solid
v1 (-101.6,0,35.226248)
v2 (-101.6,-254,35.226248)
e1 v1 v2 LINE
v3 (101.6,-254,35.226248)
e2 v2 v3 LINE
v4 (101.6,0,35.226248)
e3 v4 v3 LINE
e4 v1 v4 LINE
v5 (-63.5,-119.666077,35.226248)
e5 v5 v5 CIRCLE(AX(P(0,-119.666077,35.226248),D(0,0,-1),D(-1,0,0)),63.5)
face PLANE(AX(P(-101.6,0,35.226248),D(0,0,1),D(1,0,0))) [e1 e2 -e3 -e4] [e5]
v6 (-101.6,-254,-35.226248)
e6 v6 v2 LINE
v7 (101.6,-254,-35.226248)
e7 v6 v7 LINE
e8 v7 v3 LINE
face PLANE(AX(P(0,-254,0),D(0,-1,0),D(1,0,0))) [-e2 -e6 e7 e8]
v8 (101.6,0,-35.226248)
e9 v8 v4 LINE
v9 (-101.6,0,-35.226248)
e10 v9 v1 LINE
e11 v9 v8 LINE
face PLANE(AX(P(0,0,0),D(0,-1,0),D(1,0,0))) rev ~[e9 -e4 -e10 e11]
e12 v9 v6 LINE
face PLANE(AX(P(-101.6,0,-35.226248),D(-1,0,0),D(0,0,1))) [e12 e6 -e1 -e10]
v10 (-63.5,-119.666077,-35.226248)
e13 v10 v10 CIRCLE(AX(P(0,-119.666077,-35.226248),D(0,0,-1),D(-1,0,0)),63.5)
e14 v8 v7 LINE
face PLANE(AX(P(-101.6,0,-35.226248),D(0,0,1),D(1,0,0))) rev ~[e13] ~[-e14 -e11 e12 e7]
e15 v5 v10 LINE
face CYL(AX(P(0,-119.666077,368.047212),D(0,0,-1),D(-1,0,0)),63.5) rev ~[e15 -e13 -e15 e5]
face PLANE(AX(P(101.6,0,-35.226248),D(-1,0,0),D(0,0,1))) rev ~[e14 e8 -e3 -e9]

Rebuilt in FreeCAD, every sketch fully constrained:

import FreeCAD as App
import Part
import Sketcher

V = App.Vector
Q = App.Units.Quantity


def add_polygon(sketch, points):
    """Adds a closed chain of lines whose ends are joined by coincident constraints."""
    first, n = sketch.GeometryCount, len(points)
    for a, b in zip(points, points[1:] + points[:1]):
        sketch.addGeometry(Part.LineSegment(App.Vector(*a, 0), App.Vector(*b, 0)), False)
    for i in range(n):
        sketch.addConstraint(Sketcher.Constraint("Coincident", first + i, 2, first + (i + 1) % n, 1))

doc = App.newDocument("Part")
body = doc.addObject("PartDesign::Body", "Body")

# Sketch on XZ plane
sketch1 = body.newObject("Sketcher::SketchObject", "Sketch")
sketch1.AttachmentSupport = (doc.getObject("XZ_Plane"), [""])
sketch1.MapMode = "FlatFace"
add_polygon(sketch1, [(-102, 35), (-102, -35), (102, -35), (102, 35)])  # lines 0-3
sketch1.addConstraint([
    Sketcher.Constraint("Vertical", 0),
    Sketcher.Constraint("Horizontal", 1),
    Sketcher.Constraint("Vertical", 2),
    Sketcher.Constraint("Horizontal", 3),
    Sketcher.Constraint("Symmetric", 0, 2, 2, 2, -1, 1),
    Sketcher.Constraint("DistanceX", 1, 1, 1, 2, Q("8 in")),
    Sketcher.Constraint("DistanceY", 0, 2, 0, 1, 70.452496),
])
pad1 = body.newObject("PartDesign::Pad", "Pad")
pad1.Profile = sketch1
pad1.Length = Q("10 in")

# Sketch on XY plane
sketch2 = body.newObject("Sketcher::SketchObject", "Sketch001")
sketch2.AttachmentSupport = (doc.getObject("XY_Plane"), [""])
sketch2.MapMode = "FlatFace"
sketch2.AttachmentOffset = App.Placement(V(0, 0, 35.226248), App.Rotation())
sketch2.addGeometry(Part.Circle(V(0, -120, 0), V(0, 0, 1), 64), False)
sketch2.addConstraint([
    Sketcher.Constraint("PointOnObject", 0, 3, -2),
    Sketcher.Constraint("Diameter", 0, Q("5 in")),
    Sketcher.Constraint("DistanceY", 0, 3, -1, 1, 119.666077),
])
doc.recompute()
hole = body.newObject("PartDesign::Hole", "Hole")
hole.Profile = sketch2
hole.ThreadType = "None"
hole.Diameter = Q("5 in")
hole.DepthType = "ThroughAll"

doc.recompute()
